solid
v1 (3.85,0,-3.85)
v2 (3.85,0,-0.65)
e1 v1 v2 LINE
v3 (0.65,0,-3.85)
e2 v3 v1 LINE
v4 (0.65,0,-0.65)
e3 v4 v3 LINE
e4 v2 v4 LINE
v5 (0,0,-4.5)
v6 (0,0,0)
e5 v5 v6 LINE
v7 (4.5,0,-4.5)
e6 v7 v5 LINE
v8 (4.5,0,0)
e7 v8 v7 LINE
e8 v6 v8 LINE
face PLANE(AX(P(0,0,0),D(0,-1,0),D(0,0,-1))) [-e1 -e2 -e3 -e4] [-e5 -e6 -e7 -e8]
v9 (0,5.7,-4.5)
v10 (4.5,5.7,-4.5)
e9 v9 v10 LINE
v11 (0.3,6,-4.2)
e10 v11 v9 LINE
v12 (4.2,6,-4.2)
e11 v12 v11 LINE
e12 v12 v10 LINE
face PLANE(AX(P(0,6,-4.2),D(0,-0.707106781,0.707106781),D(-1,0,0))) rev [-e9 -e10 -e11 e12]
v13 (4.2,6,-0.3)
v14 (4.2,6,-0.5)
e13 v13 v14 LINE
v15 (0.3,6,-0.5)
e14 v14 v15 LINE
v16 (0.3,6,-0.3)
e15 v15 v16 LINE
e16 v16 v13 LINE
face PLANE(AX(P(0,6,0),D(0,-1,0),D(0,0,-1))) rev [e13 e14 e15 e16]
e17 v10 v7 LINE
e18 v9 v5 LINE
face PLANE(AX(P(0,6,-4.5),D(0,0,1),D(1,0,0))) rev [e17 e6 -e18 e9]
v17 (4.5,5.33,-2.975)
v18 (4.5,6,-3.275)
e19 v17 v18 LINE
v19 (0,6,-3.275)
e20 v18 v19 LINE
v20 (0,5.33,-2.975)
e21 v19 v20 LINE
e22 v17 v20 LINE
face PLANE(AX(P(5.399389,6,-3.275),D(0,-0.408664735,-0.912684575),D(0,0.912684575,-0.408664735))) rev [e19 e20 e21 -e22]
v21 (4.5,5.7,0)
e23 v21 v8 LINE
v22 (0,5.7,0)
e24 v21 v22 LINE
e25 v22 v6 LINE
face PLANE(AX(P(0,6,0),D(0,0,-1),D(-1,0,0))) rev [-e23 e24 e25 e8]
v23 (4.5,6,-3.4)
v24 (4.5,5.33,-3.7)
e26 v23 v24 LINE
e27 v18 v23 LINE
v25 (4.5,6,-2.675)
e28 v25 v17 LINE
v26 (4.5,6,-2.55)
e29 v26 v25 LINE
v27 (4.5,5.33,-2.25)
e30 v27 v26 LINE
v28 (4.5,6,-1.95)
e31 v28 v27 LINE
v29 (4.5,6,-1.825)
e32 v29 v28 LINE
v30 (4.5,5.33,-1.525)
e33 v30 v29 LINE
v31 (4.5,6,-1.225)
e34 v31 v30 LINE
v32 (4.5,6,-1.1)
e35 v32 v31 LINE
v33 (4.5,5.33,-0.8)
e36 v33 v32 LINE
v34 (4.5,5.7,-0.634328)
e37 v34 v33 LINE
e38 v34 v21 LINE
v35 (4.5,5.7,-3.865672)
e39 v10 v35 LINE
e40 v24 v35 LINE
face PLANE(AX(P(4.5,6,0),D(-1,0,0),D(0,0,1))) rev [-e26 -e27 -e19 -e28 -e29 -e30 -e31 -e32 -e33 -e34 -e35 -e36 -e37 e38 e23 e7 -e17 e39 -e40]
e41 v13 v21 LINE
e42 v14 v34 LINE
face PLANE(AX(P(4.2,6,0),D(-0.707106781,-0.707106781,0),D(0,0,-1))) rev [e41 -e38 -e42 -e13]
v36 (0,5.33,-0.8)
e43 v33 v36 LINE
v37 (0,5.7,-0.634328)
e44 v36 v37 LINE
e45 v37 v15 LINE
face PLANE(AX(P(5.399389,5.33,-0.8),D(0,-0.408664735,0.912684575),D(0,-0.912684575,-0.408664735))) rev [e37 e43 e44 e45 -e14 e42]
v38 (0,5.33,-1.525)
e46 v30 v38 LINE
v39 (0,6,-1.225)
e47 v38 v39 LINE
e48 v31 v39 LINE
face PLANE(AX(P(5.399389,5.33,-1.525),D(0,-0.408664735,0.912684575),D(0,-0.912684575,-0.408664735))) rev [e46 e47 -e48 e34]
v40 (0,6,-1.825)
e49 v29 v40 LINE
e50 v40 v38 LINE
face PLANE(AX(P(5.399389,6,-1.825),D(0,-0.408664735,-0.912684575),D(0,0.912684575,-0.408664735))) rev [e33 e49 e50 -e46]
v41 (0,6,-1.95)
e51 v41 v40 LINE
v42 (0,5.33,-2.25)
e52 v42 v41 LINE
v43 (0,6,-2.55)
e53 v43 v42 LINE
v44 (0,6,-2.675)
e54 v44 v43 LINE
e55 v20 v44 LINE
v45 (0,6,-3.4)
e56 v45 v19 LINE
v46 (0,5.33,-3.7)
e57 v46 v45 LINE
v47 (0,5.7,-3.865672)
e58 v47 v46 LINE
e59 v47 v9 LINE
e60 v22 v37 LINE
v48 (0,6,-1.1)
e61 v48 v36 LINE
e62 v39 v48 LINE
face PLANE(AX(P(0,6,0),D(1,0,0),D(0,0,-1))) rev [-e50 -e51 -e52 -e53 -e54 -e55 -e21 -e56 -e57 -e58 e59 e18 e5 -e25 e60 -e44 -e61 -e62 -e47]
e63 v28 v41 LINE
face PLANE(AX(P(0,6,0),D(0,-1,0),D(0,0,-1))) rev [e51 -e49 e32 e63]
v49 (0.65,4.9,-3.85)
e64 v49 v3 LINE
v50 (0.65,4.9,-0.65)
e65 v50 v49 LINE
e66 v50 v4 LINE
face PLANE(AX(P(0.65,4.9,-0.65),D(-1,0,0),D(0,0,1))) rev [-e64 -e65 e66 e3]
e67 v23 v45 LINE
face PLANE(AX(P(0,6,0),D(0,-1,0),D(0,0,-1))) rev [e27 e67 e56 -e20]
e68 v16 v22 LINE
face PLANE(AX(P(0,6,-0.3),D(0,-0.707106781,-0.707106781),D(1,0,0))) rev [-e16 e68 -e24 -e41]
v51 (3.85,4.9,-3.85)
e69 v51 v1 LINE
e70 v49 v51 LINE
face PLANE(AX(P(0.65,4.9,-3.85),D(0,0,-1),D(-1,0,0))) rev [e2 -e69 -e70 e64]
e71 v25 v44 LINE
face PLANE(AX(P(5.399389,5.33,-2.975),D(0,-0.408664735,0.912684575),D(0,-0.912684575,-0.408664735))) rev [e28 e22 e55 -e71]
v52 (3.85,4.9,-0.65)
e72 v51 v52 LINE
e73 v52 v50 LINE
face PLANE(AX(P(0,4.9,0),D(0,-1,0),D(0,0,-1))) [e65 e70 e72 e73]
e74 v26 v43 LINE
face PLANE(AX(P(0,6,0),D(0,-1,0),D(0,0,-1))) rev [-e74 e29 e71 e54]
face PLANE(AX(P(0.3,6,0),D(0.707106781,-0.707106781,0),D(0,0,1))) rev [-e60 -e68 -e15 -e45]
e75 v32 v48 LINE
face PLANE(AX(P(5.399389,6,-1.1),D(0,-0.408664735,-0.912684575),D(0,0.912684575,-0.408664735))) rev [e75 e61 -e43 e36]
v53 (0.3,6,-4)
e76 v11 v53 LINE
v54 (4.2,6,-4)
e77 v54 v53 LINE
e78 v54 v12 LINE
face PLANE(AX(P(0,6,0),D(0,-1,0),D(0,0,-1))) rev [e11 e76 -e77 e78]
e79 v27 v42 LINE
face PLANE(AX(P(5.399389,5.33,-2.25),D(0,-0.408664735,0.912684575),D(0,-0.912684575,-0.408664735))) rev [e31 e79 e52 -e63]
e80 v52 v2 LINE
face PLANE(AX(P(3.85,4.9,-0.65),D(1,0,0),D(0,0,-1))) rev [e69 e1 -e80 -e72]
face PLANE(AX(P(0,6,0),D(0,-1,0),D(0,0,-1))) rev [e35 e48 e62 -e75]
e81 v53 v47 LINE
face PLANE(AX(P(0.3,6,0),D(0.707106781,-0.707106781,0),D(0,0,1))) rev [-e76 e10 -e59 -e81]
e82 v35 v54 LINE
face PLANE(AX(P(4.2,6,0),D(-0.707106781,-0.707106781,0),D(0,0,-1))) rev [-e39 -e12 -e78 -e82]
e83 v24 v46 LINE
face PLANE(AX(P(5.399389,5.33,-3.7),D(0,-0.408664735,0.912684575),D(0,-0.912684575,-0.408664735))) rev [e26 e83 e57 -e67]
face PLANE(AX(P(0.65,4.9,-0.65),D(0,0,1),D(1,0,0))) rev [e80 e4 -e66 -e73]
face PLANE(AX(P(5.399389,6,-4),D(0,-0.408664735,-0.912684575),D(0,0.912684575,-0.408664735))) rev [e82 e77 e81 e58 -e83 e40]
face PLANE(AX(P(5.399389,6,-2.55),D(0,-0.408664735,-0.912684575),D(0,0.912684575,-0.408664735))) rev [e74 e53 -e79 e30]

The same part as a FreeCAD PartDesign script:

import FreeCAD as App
import Part
import Sketcher

V = App.Vector
Q = App.Units.Quantity


def edges_at(feature, points):
    """Names of the edges that pass closest to the given points."""
    edges = feature.Shape.Edges
    near = lambda p: min(range(len(edges)), key=lambda i: edges[i].distToShape(Part.Vertex(*p))[0])
    return sorted({f"Edge{near(p) + 1}" for p in points})

doc = App.newDocument("Part")
params = doc.addObject("Spreadsheet::Sheet", "Params")
for row, (alias, value) in enumerate([
    ("sketch1_width", "4.5 mm"),
    ("pad1_length", "6 mm"),
    ("sketch2_width", "3.2 mm"),
    ("pocket1_length", "4.9 mm"),
    ("sketch3_height", "0.6 mm"),
    ("pocket2_length", "4.5 mm"),
    ("linearpattern_pitch", "0.725 mm"),
    ("chamfer_size", "0.3 mm"),
], start=1):
    params.set(f"A{row}", alias)
    params.set(f"B{row}", "=" + value)
    params.setAlias(f"B{row}", alias)

body = doc.addObject("PartDesign::Body", "Body")

# Sketch on XZ plane
sketch1 = body.newObject("Sketcher::SketchObject", "Sketch")
sketch1.AttachmentSupport = (doc.getObject("XZ_Plane"), [""])
sketch1.MapMode = "FlatFace"
sketch1.addGeometry([
    Part.LineSegment(V(0, -4.5, 0), V(0, 0, 0)),
    Part.LineSegment(V(0, 0, 0), V(4.5, 0, 0)),
    Part.LineSegment(V(4.5, 0, 0), V(4.5, -4.5, 0)),
    Part.LineSegment(V(4.5, -4.5, 0), V(0, -4.5, 0)),
], False)
sketch1.addConstraint([
    Sketcher.Constraint("Coincident", 0, 2, 1, 1),
    Sketcher.Constraint("Coincident", 1, 2, 2, 1),
    Sketcher.Constraint("Coincident", 2, 2, 3, 1),
    Sketcher.Constraint("Coincident", 3, 2, 0, 1),
    Sketcher.Constraint("Vertical", 0),
    Sketcher.Constraint("Horizontal", 1),
    Sketcher.Constraint("Vertical", 2),
    Sketcher.Constraint("Horizontal", 3),
    Sketcher.Constraint("Coincident", 0, 2, -1, 1),
    Sketcher.Constraint("Equal", 3, 0),
    Sketcher.Constraint("DistanceX", 1, 1, 1, 2, Q("4.5 mm")),
])
sketch1.setExpression("Constraints[10]", "Params.sketch1_width")
pad1 = body.newObject("PartDesign::Pad", "Pad")
pad1.Profile = sketch1
pad1.setExpression("Length", "Params.pad1_length")
pad1.Reversed = True

# Sketch on XZ plane
sketch2 = body.newObject("Sketcher::SketchObject", "Sketch001")
sketch2.AttachmentSupport = (doc.getObject("XZ_Plane"), [""])
sketch2.MapMode = "FlatFace"
sketch2.addGeometry([
    Part.LineSegment(V(0.7, -0.7, 0), V(0.7, -3.9, 0)),
    Part.LineSegment(V(0.7, -3.9, 0), V(3.9, -3.9, 0)),
    Part.LineSegment(V(3.9, -3.9, 0), V(3.9, -0.7, 0)),
    Part.LineSegment(V(3.9, -0.7, 0), V(0.7, -0.7, 0)),
], False)
sketch2.addConstraint([
    Sketcher.Constraint("Coincident", 0, 2, 1, 1),
    Sketcher.Constraint("Coincident", 1, 2, 2, 1),
    Sketcher.Constraint("Coincident", 2, 2, 3, 1),
    Sketcher.Constraint("Coincident", 3, 2, 0, 1),
    Sketcher.Constraint("Vertical", 0),
    Sketcher.Constraint("Horizontal", 1),
    Sketcher.Constraint("Vertical", 2),
    Sketcher.Constraint("Horizontal", 3),
    Sketcher.Constraint("Equal", 3, 0),
    Sketcher.Constraint("DistanceX", 1, 1, 1, 2, Q("3.2 mm")),
    Sketcher.Constraint("DistanceX", -1, 1, 0, 2, Q("0.65 mm")),
    Sketcher.Constraint("DistanceY", 0, 2, -1, 1, Q("3.85 mm")),
])
sketch2.setExpression("Constraints[9]", "Params.sketch2_width")
pocket1 = body.newObject("PartDesign::Pocket", "Pocket")
pocket1.Profile = sketch2
pocket1.setExpression("Length", "Params.pocket1_length")

# Sketch on YZ plane
sketch3 = body.newObject("Sketcher::SketchObject", "Sketch002")
sketch3.AttachmentSupport = (doc.getObject("YZ_Plane"), [""])
sketch3.MapMode = "FlatFace"
sketch3.addGeometry([
    Part.LineSegment(V(6, -4, 0), V(5.3, -3.7, 0)),
    Part.LineSegment(V(5.3, -3.7, 0), V(6, -3.4, 0)),
    Part.LineSegment(V(6, -3.4, 0), V(6, -4, 0)),
], False)
sketch3.addConstraint([
    Sketcher.Constraint("Coincident", 0, 2, 1, 1),
    Sketcher.Constraint("Coincident", 1, 2, 2, 1),
    Sketcher.Constraint("Coincident", 2, 2, 0, 1),
    Sketcher.Constraint("Vertical", 2),
    Sketcher.Constraint("Equal", 0, 1),
    Sketcher.Constraint("DistanceY", 2, 2, 2, 1, Q("0.6 mm")),
    Sketcher.Constraint("DistanceX", -1, 1, 1, 2, Q("6 mm")),
    Sketcher.Constraint("DistanceY", 2, 2, -1, 1, Q("4 mm")),
    Sketcher.Constraint("DistanceX", -1, 1, 0, 2, Q("5.33 mm")),
])
sketch3.setExpression("Constraints[5]", "Params.sketch3_height")
pocket2 = body.newObject("PartDesign::Pocket", "Pocket001")
pocket2.Profile = sketch3
pocket2.setExpression("Length", "Params.pocket2_length")
pocket2.Reversed = True
doc.recompute()

linearpattern = body.newObject("PartDesign::LinearPattern", "LinearPattern")
linearpattern.Originals = [pocket2]
linearpattern.Direction = (doc.getObject("Z_Axis"), [""])
linearpattern.Mode = "offset"
linearpattern.setExpression("Offset", "Params.linearpattern_pitch")
linearpattern.Occurrences = 5
body.Tip = linearpattern
doc.recompute()

chamfer = body.newObject("PartDesign::Chamfer", "Chamfer")
chamfer.Base = (linearpattern, edges_at(linearpattern, [
    (4.5, 6, -0.25),
    (2.25, 6, -4.5),
    (4.5, 6, -4.25),
    (0, 6, -0.25),
    (0, 6, -4.25),
    (2.25, 6, 0),
]))
chamfer.setExpression("Size", "Params.chamfer_size")

doc.recompute()
